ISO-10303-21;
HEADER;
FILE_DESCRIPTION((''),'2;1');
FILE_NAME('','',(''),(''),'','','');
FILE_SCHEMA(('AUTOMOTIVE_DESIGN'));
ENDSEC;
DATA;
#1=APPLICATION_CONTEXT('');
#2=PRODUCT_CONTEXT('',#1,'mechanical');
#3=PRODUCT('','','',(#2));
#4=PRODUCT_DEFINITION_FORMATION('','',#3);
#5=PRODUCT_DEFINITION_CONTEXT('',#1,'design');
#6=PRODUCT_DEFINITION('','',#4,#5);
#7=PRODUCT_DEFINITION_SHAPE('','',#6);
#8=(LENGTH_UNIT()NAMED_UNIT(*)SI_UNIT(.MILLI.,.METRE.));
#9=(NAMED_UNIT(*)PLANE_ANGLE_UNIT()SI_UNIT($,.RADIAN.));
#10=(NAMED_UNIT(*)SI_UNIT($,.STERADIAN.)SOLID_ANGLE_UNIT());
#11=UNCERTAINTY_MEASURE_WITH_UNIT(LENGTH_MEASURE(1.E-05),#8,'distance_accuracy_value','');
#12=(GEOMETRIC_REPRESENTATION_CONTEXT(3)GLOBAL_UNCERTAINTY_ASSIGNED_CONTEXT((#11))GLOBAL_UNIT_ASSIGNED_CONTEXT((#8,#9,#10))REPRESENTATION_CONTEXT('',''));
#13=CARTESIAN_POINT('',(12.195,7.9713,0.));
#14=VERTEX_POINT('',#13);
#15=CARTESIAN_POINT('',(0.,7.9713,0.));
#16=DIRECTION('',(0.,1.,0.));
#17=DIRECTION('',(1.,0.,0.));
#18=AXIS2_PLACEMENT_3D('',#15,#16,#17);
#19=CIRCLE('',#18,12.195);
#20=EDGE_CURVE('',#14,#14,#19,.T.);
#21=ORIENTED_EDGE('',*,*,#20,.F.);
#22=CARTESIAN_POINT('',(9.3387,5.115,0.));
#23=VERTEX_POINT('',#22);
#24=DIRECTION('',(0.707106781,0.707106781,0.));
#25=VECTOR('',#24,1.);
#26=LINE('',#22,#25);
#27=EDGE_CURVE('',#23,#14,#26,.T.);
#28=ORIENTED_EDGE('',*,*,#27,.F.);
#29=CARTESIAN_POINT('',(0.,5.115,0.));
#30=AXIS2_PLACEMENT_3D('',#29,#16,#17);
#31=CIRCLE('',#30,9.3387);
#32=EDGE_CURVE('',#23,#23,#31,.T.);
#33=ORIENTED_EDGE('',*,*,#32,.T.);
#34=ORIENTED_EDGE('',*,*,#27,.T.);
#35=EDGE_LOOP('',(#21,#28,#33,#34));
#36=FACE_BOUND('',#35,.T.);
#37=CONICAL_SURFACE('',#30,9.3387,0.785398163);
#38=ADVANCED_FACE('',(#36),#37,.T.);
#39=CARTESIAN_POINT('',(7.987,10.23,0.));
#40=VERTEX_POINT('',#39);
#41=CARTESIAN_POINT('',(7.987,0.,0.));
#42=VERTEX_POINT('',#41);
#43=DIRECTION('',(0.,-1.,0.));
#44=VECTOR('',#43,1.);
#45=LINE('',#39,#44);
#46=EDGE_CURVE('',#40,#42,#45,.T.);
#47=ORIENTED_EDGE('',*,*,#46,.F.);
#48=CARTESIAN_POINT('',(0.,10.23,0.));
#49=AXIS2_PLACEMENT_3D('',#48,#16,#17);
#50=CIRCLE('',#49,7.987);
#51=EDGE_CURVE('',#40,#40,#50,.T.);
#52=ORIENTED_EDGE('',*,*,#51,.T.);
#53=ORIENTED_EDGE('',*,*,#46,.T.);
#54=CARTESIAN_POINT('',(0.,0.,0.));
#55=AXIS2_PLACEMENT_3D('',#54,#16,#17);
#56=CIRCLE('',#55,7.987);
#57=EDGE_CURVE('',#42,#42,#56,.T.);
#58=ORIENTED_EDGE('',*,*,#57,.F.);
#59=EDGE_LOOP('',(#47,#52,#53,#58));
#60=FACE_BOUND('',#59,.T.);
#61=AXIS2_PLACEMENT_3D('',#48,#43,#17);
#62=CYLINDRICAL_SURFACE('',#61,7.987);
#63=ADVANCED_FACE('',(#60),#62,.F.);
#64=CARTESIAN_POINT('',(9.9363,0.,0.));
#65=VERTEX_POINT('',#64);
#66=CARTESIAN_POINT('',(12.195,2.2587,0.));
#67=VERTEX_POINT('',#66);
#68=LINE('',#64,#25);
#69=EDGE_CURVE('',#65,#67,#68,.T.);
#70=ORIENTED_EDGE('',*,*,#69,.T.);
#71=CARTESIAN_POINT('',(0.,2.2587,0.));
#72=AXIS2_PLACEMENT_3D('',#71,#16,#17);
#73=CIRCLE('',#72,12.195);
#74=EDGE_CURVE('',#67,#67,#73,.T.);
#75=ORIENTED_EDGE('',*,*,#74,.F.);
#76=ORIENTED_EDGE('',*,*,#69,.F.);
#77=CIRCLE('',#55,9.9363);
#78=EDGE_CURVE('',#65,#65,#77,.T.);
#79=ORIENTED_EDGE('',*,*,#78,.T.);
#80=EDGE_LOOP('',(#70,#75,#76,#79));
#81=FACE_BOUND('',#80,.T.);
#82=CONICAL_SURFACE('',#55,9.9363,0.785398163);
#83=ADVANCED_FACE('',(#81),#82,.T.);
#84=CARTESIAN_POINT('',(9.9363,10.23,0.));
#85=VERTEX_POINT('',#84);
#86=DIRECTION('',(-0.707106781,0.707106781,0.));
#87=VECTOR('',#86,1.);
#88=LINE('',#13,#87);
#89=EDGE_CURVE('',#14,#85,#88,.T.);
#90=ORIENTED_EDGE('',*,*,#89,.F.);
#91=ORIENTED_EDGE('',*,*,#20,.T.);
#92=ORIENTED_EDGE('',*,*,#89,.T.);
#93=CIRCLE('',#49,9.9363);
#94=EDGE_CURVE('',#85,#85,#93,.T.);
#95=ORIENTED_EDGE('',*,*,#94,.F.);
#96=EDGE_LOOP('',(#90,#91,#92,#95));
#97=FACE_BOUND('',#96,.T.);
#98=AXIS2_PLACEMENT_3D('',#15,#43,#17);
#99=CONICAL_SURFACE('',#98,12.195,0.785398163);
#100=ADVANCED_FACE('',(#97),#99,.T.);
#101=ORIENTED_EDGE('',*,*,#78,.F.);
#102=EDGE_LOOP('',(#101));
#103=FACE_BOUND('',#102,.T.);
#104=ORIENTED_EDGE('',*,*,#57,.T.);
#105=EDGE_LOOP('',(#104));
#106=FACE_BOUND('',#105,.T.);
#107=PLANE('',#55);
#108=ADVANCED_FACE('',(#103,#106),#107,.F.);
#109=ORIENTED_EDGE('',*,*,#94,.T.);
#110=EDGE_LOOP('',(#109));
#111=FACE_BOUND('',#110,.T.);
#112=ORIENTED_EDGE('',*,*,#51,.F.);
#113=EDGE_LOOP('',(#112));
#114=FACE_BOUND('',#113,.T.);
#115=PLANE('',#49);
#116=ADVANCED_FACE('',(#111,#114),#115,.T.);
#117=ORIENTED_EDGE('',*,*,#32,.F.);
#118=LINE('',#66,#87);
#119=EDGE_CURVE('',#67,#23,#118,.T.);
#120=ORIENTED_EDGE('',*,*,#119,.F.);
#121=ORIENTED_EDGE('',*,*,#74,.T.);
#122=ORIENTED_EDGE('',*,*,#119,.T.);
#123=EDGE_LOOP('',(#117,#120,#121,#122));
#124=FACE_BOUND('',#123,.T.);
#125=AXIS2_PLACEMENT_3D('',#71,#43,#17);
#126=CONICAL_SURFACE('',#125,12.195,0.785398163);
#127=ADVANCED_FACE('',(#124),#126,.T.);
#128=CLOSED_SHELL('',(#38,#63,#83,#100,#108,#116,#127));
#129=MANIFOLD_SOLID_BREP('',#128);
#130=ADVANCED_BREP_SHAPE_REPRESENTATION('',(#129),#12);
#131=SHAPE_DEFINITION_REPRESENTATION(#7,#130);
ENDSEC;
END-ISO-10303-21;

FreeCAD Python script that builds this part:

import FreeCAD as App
import Part
import Sketcher


def add_polygon(sketch, points):
    """Adds a closed chain of lines whose ends are joined by coincident constraints."""
    first, n = sketch.GeometryCount, len(points)
    for a, b in zip(points, points[1:] + points[:1]):
        sketch.addGeometry(Part.LineSegment(App.Vector(*a, 0), App.Vector(*b, 0)), False)
    for i in range(n):
        sketch.addConstraint(Sketcher.Constraint("Coincident", first + i, 2, first + (i + 1) % n, 1))

doc = App.newDocument("Part")
body = doc.addObject("PartDesign::Body", "Body")

# Sketch on XY plane
sketch1 = body.newObject("Sketcher::SketchObject", "Sketch")
sketch1.AttachmentSupport = (doc.getObject("XY_Plane"), [""])
sketch1.MapMode = "FlatFace"
add_polygon(sketch1, [(8, 10.2), (8, 0), (9.9, 0), (12.2, 2.3), (9.3, 5.1), (12.2, 8), (9.9, 10.2)])  # lines 0-6
sketch1.addConstraint([
    Sketcher.Constraint("Vertical", 0),
    Sketcher.Constraint("Horizontal", 1),
    Sketcher.Constraint("Horizontal", 6),
    Sketcher.Constraint("PointOnObject", 0, 2, -1),
    Sketcher.Constraint("Perpendicular", 2, 3),
    Sketcher.Constraint("Perpendicular", 3, 4),
    Sketcher.Constraint("Perpendicular", 4, 5),
    Sketcher.Constraint("Vertical", 2, 2, 4, 2),
    Sketcher.Constraint("Vertical", 1, 2, 5, 2),
    Sketcher.Constraint("Equal", 3, 4),
    Sketcher.Constraint("DistanceY", 0, 2, 0, 1, 10.23),
    Sketcher.Constraint("DistanceX", 1, 1, 1, 2, 1.9493),
    Sketcher.Constraint("DistanceX", -1, 1, 0, 2, 7.987),
    Sketcher.Constraint("DistanceX", -1, 1, 2, 2, 12.195),
])
revolution = body.newObject("PartDesign::Revolution", "Revolution")
revolution.Profile = sketch1
revolution.ReferenceAxis = (sketch1, ["V_Axis"])
revolution.Angle = 360

doc.recompute()
